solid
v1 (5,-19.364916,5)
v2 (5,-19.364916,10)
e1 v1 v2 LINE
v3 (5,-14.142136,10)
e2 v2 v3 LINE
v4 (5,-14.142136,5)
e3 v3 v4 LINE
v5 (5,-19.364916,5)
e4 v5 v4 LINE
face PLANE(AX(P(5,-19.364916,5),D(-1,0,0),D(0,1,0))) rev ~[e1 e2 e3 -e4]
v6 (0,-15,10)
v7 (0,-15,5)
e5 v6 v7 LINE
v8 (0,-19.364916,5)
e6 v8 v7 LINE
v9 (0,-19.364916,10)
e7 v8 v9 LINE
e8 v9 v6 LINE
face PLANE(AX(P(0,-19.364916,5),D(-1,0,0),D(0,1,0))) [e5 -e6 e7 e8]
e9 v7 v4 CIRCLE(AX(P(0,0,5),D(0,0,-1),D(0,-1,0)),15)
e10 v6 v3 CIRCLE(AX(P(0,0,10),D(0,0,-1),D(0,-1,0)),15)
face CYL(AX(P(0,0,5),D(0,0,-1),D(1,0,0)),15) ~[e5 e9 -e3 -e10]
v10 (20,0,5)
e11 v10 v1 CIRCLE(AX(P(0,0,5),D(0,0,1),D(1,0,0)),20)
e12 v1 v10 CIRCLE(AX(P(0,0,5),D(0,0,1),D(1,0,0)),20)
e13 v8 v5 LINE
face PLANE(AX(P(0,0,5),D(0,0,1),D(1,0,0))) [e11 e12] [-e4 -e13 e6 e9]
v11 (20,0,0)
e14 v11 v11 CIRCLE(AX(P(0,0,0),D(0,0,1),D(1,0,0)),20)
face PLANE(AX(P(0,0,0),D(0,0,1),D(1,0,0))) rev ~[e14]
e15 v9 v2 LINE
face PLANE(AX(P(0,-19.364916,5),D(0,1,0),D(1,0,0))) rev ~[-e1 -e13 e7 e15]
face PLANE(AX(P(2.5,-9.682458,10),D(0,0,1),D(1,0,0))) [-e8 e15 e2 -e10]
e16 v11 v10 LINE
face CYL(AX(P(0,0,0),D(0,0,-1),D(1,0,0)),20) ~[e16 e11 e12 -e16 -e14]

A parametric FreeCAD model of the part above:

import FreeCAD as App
import Part
import Sketcher

V = App.Vector


def add_polygon(sketch, points):
    """Adds a closed chain of lines whose ends are joined by coincident constraints."""
    first, n = sketch.GeometryCount, len(points)
    for a, b in zip(points, points[1:] + points[:1]):
        sketch.addGeometry(Part.LineSegment(App.Vector(*a, 0), App.Vector(*b, 0)), False)
    for i in range(n):
        sketch.addConstraint(Sketcher.Constraint("Coincident", first + i, 2, first + (i + 1) % n, 1))

doc = App.newDocument("Part")
body = doc.addObject("PartDesign::Body", "Body")

# Sketch on XY plane
sketch1 = body.newObject("Sketcher::SketchObject", "Sketch")
sketch1.AttachmentSupport = (doc.getObject("XY_Plane"), [""])
sketch1.MapMode = "FlatFace"
sketch1.addGeometry(Part.Circle(V(0, 0, 0), V(0, 0, 1), 20), False)
sketch1.addConstraint([
    Sketcher.Constraint("Coincident", 0, 3, -1, 1),
    Sketcher.Constraint("Diameter", 0, 40.0),
])
pad1 = body.newObject("PartDesign::Pad", "Pad")
pad1.Profile = sketch1
pad1.Length = 5

# Sketch on XY plane
sketch2 = body.newObject("Sketcher::SketchObject", "Sketch001")
sketch2.AttachmentSupport = (doc.getObject("XY_Plane"), [""])
sketch2.MapMode = "FlatFace"
sketch2.AttachmentOffset = App.Placement(V(0, 0, 5), App.Rotation())
sketch2.addGeometry(Part.Circle(V(0, 0, 0), V(0, 0, 1), 15), False)
sketch2.addConstraint([
    Sketcher.Constraint("Coincident", 0, 3, -1, 1),
    Sketcher.Constraint("Diameter", 0, 30.0),
])
pad2 = body.newObject("PartDesign::Pad", "Pad001")
pad2.Profile = sketch2
pad2.Length = 5

# Sketch on XY plane
sketch3 = body.newObject("Sketcher::SketchObject", "Sketch002")
sketch3.AttachmentSupport = (doc.getObject("XY_Plane"), [""])
sketch3.MapMode = "FlatFace"
sketch3.AttachmentOffset = App.Placement(V(0, 0, 5), App.Rotation())
add_polygon(sketch3, [(0, 0), (0, -19), (5, -19), (5, 0)])  # lines 0-3
sketch3.addConstraint([
    Sketcher.Constraint("Vertical", 0),
    Sketcher.Constraint("Horizontal", 1),
    Sketcher.Constraint("Vertical", 2),
    Sketcher.Constraint("Horizontal", 3),
    Sketcher.Constraint("Coincident", 3, 2, -1, 1),
    Sketcher.Constraint("DistanceX", 1, 1, 1, 2, 5.0),
    Sketcher.Constraint("DistanceY", 0, 2, 0, 1, 19.364917),
])
pad3 = body.newObject("PartDesign::Pad", "Pad002")
pad3.Profile = sketch3
pad3.Length = 5

doc.recompute()
